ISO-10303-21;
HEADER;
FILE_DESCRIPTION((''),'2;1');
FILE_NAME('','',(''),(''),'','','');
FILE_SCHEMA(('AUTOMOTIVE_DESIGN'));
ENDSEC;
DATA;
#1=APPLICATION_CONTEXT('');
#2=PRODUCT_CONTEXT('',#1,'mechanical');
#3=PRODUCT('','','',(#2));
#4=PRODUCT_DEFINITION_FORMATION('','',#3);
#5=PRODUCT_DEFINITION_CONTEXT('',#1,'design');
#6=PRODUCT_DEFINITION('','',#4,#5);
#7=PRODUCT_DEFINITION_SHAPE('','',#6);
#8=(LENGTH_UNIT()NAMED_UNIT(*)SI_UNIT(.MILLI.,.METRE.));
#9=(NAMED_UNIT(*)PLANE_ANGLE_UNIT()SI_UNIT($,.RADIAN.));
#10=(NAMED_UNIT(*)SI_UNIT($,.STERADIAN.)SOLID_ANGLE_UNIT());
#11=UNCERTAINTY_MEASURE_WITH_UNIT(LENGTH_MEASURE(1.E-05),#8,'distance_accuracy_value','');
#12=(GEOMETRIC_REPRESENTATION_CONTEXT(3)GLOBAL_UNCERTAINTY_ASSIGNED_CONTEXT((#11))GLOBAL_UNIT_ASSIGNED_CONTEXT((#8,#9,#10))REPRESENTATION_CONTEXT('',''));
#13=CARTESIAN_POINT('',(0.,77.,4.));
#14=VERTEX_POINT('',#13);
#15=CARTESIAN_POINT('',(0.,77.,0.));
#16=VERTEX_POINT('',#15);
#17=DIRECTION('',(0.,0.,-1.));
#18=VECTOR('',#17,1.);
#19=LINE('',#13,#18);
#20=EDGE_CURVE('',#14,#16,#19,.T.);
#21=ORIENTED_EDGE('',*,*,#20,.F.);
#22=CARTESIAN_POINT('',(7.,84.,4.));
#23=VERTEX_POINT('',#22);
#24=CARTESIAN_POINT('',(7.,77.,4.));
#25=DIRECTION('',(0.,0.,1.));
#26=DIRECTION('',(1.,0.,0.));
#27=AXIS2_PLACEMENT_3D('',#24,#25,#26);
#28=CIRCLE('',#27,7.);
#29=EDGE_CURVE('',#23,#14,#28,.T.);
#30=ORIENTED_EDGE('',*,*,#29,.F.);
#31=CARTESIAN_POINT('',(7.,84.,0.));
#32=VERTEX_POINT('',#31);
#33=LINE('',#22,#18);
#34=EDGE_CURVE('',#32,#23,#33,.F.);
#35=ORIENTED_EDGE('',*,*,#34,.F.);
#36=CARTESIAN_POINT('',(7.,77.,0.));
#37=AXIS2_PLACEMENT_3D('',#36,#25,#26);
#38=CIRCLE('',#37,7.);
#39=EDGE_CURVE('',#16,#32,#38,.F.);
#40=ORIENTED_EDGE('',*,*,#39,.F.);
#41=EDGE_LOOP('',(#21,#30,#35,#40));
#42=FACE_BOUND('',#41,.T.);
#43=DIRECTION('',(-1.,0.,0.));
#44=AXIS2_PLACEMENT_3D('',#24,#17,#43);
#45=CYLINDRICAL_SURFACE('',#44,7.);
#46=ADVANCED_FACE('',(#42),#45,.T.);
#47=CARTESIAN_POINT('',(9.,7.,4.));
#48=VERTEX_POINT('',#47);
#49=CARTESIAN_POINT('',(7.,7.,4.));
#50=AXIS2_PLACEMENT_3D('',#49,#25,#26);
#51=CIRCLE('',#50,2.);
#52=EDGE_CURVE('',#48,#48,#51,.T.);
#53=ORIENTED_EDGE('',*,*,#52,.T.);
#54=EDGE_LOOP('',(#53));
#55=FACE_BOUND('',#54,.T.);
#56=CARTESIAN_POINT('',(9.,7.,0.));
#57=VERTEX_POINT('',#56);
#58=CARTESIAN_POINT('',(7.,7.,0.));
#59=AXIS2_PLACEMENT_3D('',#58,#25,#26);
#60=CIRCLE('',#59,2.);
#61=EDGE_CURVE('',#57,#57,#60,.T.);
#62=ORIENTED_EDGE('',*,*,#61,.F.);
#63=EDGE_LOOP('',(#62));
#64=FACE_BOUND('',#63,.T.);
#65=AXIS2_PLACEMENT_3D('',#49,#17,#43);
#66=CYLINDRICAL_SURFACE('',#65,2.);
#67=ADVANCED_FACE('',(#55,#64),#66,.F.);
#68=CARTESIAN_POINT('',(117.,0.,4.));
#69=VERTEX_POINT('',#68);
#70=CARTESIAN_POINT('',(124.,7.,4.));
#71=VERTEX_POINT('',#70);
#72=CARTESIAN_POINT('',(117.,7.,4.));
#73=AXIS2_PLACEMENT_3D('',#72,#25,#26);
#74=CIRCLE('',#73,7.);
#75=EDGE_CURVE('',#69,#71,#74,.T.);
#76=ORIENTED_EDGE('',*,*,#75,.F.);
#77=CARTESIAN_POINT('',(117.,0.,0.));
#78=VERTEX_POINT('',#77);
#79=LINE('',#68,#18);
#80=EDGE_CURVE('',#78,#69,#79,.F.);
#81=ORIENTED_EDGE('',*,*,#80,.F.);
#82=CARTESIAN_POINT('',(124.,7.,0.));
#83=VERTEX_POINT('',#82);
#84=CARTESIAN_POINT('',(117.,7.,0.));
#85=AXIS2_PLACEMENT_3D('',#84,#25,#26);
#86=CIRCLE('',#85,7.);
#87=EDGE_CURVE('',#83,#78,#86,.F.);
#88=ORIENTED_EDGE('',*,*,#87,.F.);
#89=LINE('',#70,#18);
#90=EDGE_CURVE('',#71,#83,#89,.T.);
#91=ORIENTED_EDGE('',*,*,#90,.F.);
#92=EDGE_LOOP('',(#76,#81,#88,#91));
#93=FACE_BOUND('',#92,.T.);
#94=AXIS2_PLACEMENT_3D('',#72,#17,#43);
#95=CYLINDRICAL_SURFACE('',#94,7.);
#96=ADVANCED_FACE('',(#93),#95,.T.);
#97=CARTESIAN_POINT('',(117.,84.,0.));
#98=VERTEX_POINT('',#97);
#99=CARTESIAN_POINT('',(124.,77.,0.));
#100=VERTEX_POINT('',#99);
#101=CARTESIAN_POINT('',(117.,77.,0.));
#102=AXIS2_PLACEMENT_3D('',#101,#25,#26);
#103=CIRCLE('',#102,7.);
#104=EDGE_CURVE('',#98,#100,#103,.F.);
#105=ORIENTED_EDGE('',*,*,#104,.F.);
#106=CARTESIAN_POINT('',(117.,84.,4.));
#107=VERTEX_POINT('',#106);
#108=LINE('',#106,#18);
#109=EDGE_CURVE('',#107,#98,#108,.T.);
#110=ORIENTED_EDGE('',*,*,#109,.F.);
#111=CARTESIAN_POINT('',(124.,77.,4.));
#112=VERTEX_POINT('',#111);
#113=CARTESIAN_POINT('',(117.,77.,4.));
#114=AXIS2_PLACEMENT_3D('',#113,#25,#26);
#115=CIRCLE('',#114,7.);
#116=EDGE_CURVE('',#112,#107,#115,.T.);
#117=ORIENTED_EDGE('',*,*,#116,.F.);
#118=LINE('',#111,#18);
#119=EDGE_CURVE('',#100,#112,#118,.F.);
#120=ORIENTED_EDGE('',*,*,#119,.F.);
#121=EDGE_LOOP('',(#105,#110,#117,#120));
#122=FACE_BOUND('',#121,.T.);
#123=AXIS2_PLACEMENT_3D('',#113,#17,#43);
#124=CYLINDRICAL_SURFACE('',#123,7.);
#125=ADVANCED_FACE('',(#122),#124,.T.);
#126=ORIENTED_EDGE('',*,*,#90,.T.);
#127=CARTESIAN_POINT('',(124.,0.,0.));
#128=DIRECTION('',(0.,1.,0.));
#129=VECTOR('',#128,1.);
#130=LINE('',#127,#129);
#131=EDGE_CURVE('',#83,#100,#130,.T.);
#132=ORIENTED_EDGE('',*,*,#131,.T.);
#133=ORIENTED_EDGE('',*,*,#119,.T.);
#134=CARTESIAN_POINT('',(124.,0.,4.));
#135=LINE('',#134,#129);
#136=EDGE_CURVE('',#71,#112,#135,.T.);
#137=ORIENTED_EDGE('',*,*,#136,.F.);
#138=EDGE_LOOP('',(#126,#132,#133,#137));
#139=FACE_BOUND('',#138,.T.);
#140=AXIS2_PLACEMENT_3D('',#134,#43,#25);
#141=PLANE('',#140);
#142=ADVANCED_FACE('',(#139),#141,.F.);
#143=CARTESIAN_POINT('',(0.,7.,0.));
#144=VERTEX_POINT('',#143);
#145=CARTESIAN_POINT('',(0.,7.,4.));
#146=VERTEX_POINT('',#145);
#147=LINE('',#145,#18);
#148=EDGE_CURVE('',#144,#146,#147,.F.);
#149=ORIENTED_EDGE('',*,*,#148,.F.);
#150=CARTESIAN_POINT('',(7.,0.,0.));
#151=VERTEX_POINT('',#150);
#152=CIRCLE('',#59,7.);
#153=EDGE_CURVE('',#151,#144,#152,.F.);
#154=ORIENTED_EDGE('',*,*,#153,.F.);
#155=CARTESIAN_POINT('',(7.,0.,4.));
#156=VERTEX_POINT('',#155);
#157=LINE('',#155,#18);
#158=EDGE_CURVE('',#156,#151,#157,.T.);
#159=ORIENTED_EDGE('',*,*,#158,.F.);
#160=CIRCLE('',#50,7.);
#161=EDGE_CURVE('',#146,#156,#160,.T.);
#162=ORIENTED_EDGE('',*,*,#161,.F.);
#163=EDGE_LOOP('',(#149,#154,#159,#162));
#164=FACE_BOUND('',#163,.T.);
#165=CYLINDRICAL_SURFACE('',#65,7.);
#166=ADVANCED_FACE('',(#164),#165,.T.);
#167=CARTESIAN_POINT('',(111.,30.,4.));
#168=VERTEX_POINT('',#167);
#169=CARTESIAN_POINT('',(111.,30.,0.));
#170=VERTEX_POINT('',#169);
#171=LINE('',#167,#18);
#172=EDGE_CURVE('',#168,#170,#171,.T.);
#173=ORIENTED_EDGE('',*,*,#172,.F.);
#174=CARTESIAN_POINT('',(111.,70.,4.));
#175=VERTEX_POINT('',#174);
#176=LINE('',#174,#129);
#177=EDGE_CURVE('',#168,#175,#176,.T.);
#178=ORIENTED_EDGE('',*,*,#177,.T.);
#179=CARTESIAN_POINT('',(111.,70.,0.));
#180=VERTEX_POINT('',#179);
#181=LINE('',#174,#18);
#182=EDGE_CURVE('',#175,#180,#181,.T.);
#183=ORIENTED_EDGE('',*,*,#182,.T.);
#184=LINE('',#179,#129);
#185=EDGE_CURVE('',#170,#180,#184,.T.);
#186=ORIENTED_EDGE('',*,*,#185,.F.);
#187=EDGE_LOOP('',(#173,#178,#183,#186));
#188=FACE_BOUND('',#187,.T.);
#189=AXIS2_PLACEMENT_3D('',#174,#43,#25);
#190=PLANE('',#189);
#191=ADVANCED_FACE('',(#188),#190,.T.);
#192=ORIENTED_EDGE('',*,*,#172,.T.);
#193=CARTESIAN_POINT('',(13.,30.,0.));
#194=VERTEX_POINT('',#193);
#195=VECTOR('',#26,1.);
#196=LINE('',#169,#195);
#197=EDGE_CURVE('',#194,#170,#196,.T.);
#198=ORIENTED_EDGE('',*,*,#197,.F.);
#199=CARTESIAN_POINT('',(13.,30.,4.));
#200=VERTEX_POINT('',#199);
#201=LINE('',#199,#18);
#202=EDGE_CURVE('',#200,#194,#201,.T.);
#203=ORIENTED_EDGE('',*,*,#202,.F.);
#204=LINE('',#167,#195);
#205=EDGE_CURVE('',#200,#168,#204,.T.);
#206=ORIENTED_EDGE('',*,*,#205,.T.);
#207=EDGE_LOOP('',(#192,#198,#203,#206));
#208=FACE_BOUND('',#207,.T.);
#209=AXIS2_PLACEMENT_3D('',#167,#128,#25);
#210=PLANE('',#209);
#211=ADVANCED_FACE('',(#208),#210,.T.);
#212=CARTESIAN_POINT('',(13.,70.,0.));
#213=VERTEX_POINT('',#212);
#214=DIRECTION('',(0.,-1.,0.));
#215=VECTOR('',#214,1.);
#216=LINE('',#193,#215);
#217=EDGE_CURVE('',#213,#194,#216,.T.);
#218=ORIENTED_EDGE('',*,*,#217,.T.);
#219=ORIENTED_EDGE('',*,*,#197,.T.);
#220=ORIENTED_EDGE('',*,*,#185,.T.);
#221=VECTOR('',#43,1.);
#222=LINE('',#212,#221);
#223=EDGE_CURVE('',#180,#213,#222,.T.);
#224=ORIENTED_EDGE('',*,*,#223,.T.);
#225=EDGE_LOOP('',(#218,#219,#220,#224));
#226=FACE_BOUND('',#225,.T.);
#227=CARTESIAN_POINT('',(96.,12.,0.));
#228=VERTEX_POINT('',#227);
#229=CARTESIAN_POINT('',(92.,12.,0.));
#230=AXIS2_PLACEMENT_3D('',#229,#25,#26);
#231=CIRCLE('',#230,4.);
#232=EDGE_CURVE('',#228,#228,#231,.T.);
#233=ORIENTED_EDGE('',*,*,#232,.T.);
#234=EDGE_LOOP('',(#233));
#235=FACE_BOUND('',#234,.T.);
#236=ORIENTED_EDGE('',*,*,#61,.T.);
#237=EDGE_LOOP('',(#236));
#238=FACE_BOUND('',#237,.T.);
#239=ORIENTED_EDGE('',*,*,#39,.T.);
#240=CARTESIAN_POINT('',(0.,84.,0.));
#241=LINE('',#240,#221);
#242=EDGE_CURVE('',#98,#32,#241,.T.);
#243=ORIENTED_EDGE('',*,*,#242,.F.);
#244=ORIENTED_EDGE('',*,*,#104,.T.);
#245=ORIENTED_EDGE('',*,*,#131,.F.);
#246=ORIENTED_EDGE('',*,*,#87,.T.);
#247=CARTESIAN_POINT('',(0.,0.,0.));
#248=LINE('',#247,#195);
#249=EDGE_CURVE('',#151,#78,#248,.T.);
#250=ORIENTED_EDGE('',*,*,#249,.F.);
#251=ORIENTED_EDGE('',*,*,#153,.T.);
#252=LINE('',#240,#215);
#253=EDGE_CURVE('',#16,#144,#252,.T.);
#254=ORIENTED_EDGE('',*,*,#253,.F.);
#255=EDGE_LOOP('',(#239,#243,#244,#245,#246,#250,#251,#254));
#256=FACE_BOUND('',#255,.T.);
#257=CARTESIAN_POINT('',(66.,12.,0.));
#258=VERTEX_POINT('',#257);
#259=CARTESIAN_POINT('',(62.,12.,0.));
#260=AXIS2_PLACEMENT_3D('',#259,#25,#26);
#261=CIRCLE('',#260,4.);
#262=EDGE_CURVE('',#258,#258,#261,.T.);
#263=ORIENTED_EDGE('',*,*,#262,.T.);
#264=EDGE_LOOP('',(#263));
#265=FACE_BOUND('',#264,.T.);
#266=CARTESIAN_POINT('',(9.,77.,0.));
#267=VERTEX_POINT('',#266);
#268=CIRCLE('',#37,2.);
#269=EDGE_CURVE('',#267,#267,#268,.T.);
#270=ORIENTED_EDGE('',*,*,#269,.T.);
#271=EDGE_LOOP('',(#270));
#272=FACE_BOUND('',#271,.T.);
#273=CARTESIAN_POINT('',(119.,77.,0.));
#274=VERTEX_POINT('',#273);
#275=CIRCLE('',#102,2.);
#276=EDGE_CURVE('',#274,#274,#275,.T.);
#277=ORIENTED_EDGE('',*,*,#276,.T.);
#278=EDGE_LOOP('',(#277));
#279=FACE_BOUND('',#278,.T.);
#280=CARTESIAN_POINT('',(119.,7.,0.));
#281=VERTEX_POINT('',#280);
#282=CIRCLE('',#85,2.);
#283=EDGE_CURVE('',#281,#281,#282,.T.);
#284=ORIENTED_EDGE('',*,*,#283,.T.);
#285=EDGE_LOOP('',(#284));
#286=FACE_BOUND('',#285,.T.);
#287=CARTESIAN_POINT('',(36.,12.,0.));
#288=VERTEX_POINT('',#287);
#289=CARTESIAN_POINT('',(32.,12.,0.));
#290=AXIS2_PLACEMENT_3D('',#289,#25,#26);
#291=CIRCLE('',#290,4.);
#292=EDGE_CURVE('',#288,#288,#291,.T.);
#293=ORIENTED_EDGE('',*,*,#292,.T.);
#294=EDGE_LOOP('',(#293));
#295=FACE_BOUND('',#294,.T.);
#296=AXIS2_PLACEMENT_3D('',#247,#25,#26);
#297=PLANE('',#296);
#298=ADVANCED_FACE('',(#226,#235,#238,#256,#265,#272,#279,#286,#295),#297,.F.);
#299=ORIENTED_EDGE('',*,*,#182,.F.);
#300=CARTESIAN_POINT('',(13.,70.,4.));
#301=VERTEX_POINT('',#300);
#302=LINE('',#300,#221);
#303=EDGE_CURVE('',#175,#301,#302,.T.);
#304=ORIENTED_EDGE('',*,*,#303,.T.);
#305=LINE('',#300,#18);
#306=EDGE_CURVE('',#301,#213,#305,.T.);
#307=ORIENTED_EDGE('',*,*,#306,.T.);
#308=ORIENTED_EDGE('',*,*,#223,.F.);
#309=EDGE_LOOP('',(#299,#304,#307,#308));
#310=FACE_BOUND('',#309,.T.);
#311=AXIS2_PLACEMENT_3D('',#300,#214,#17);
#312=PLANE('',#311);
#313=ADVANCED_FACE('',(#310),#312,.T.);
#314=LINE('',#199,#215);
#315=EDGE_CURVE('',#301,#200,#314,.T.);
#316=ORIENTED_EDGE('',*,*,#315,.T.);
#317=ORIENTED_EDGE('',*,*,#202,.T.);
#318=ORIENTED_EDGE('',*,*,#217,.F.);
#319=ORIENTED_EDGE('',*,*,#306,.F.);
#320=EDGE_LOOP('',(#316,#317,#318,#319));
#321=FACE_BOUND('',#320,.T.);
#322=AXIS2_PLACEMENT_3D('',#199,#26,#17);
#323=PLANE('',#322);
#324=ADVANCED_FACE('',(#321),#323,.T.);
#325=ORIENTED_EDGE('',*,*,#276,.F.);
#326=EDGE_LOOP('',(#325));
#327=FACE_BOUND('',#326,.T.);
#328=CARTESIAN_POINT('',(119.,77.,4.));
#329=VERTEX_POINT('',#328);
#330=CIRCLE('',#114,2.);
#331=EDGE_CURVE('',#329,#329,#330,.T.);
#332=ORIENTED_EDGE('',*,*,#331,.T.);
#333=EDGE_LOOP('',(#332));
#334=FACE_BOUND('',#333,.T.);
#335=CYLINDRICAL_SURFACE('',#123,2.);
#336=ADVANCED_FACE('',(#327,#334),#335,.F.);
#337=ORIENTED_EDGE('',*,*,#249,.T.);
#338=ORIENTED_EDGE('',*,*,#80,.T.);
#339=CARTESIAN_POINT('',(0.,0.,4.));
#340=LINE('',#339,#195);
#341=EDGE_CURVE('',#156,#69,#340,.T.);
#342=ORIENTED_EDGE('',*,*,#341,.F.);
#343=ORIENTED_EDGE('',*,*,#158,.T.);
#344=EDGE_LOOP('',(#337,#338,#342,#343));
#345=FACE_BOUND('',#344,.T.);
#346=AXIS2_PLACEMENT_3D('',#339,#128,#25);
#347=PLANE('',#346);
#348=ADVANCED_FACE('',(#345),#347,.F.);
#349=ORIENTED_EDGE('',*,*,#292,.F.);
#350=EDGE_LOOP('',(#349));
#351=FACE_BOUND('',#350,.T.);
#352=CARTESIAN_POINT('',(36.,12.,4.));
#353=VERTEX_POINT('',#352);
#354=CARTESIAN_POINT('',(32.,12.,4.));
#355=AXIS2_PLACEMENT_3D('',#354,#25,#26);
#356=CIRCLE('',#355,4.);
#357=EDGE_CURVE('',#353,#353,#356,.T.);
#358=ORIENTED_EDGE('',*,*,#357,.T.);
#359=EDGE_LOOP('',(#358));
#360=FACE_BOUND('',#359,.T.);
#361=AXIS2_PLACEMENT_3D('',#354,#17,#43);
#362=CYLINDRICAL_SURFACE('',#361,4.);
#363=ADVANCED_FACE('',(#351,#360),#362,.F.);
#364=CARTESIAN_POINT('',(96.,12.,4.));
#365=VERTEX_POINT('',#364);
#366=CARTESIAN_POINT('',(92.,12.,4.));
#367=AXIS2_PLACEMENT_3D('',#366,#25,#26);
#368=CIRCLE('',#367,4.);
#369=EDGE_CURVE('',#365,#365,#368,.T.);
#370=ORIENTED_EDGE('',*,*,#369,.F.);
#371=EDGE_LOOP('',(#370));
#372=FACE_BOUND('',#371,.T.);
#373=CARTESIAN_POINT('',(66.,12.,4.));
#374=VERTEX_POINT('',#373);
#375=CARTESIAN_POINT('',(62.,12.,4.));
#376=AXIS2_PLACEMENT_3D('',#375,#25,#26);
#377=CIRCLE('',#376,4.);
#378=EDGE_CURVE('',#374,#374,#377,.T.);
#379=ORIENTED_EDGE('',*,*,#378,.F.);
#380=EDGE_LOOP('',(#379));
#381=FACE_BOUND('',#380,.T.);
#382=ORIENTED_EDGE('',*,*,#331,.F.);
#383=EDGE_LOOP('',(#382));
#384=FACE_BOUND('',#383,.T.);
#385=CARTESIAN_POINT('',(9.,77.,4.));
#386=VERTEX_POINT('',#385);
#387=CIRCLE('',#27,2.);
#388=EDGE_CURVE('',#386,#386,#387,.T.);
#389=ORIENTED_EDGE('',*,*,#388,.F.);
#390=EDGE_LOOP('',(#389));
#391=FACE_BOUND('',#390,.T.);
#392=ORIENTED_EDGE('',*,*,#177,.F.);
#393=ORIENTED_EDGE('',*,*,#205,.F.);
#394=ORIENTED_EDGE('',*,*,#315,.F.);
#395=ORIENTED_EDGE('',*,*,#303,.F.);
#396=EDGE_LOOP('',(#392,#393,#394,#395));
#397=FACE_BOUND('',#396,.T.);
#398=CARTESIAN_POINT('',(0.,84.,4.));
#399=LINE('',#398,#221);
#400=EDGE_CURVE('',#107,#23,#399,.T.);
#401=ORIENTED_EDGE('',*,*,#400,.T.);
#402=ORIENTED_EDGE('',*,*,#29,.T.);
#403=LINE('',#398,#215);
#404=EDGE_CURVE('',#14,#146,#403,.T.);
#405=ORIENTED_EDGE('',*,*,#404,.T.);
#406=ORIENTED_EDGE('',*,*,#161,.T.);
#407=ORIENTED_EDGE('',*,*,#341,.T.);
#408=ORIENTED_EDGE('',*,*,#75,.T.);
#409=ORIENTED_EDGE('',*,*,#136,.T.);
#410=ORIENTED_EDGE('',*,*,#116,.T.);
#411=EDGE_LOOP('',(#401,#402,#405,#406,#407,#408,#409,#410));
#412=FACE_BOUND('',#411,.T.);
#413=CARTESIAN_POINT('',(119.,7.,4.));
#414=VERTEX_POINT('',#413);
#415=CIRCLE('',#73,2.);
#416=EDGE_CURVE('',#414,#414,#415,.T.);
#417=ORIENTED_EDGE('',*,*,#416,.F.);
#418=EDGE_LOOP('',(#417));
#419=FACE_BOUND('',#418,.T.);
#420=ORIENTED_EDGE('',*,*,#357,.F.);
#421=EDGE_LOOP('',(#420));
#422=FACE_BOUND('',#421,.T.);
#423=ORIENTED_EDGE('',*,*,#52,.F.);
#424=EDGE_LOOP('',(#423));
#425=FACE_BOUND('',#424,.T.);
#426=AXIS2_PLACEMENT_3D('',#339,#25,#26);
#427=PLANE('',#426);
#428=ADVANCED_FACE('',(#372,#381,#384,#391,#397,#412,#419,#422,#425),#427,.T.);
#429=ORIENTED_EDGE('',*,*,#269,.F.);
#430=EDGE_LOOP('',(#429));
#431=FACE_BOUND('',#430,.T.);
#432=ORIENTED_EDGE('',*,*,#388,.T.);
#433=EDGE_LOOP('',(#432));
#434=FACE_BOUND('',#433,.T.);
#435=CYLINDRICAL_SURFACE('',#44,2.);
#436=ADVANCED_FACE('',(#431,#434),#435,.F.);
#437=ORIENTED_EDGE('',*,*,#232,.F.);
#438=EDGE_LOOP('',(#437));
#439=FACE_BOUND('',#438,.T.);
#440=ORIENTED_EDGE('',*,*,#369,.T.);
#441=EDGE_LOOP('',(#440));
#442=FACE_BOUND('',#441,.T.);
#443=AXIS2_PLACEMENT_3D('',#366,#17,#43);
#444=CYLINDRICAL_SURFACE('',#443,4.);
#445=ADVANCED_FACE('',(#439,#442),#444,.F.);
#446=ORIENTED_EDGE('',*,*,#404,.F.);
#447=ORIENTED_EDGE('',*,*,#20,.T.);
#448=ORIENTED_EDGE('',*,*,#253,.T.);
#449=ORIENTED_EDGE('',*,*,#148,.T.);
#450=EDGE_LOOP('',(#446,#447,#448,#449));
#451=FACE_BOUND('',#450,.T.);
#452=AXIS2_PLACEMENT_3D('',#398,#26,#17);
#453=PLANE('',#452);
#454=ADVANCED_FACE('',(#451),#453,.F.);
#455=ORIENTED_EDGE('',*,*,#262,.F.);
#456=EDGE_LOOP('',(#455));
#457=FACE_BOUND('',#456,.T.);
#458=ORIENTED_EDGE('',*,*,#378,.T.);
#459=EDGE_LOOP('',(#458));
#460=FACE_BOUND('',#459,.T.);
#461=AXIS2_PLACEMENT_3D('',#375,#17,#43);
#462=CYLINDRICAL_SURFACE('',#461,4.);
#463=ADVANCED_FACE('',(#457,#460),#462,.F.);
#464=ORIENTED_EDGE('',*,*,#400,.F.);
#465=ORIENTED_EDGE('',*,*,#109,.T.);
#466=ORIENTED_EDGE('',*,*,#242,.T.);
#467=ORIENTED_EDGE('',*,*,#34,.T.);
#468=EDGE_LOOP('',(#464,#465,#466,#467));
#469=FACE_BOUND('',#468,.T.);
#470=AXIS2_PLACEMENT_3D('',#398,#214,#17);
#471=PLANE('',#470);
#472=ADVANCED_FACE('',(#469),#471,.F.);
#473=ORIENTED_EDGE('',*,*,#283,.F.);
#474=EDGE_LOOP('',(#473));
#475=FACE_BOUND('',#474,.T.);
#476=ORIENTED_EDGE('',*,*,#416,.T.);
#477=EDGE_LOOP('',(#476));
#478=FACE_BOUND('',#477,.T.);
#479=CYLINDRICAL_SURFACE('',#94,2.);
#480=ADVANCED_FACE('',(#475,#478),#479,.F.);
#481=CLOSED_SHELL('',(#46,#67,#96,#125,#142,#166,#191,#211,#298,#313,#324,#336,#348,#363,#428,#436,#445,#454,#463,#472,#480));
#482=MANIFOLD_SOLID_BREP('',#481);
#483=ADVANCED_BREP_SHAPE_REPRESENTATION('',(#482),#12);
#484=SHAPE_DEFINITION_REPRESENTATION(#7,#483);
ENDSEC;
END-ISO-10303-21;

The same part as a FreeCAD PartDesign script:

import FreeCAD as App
import Part
import Sketcher
from FreeCAD import Vector
Q = App.Units.Quantity


def edges_at(feature, points):
    """Names of the edges that pass closest to the given points."""
    edges = feature.Shape.Edges
    near = lambda p: min(range(len(edges)), key=lambda i: edges[i].distToShape(Part.Vertex(*p))[0])
    return sorted({f"Edge{near(p) + 1}" for p in points})

doc = App.newDocument("Part")
body = doc.addObject("PartDesign::Body", "Body")

sketch1 = body.newObject("Sketcher::SketchObject", "Sketch")
sketch1.AttachmentSupport = (doc.getObject("XY_Plane"), [""])
sketch1.MapMode = "FlatFace"
sketch1.addGeometry([
    Part.LineSegment(Vector(0, 84, 0), Vector(0, 0, 0)),
    Part.LineSegment(Vector(0, 0, 0), Vector(124, 0, 0)),
    Part.LineSegment(Vector(124, 0, 0), Vector(124, 84, 0)),
    Part.LineSegment(Vector(124, 84, 0), Vector(0, 84, 0)),
    Part.Circle(Vector(7, 7, 0), Vector(0, 0, 1), 2),
    Part.Circle(Vector(32, 12, 0), Vector(0, 0, 1), 4),
    Part.Circle(Vector(62, 12, 0), Vector(0, 0, 1), 4),
    Part.Circle(Vector(92, 12, 0), Vector(0, 0, 1), 4),
    Part.Circle(Vector(117, 7, 0), Vector(0, 0, 1), 2),
    Part.Circle(Vector(7, 77, 0), Vector(0, 0, 1), 2),
    Part.LineSegment(Vector(111, 30, 0), Vector(13, 30, 0)),
    Part.LineSegment(Vector(13, 30, 0), Vector(13, 70, 0)),
    Part.LineSegment(Vector(13, 70, 0), Vector(111, 70, 0)),
    Part.LineSegment(Vector(111, 70, 0), Vector(111, 30, 0)),
    Part.Circle(Vector(117, 77, 0), Vector(0, 0, 1), 2),
], False)
sketch1.addConstraint([
    Sketcher.Constraint("Coincident", 0, 2, 1, 1),
    Sketcher.Constraint("Coincident", 1, 2, 2, 1),
    Sketcher.Constraint("Coincident", 2, 2, 3, 1),
    Sketcher.Constraint("Coincident", 3, 2, 0, 1),
    Sketcher.Constraint("Coincident", 10, 2, 11, 1),
    Sketcher.Constraint("Coincident", 11, 2, 12, 1),
    Sketcher.Constraint("Coincident", 12, 2, 13, 1),
    Sketcher.Constraint("Coincident", 13, 2, 10, 1),
    Sketcher.Constraint("Vertical", 0),
    Sketcher.Constraint("Horizontal", 1),
    Sketcher.Constraint("Vertical", 2),
    Sketcher.Constraint("Horizontal", 3),
    Sketcher.Constraint("Horizontal", 10),
    Sketcher.Constraint("Vertical", 11),
    Sketcher.Constraint("Horizontal", 12),
    Sketcher.Constraint("Vertical", 13),
    Sketcher.Constraint("Coincident", 0, 2, -1, 1),
    Sketcher.Constraint("Equal", 5, 6),
    Sketcher.Constraint("Equal", 6, 7),
    Sketcher.Constraint("Equal", 4, 8),
    Sketcher.Constraint("Equal", 8, 9),
    Sketcher.Constraint("Equal", 9, 14),
    Sketcher.Constraint("Horizontal", 5, 3, 6, 3),
    Sketcher.Constraint("Horizontal", 6, 3, 7, 3),
    Sketcher.Constraint("Horizontal", 4, 3, 8, 3),
    Sketcher.Constraint("Horizontal", 9, 3, 14, 3),
    Sketcher.Constraint("Vertical", 4, 3, 9, 3),
    Sketcher.Constraint("Vertical", 8, 3, 14, 3),
    Sketcher.Constraint("Diameter", 4, Q("4 mm")),
    Sketcher.Constraint("Diameter", 5, Q("8 mm")),
    Sketcher.Constraint("DistanceX", 1, 1, 1, 2, Q("124 mm")),
    Sketcher.Constraint("DistanceX", 10, 2, 10, 1, Q("98 mm")),
    Sketcher.Constraint("DistanceY", 0, 2, 0, 1, Q("84 mm")),
    Sketcher.Constraint("DistanceY", 11, 1, 11, 2, Q("40 mm")),
    Sketcher.Constraint("DistanceX", -1, 1, 4, 3, Q("7 mm")),
    Sketcher.Constraint("DistanceY", -1, 1, 4, 3, Q("7 mm")),
    Sketcher.Constraint("DistanceX", -1, 1, 5, 3, Q("32 mm")),
    Sketcher.Constraint("DistanceY", -1, 1, 5, 3, Q("12 mm")),
    Sketcher.Constraint("DistanceX", -1, 1, 6, 3, Q("62 mm")),
    Sketcher.Constraint("DistanceX", -1, 1, 7, 3, Q("92 mm")),
    Sketcher.Constraint("DistanceX", -1, 1, 8, 3, Q("117 mm")),
    Sketcher.Constraint("DistanceY", -1, 1, 9, 3, Q("77 mm")),
    Sketcher.Constraint("DistanceX", -1, 1, 10, 2, Q("13 mm")),
    Sketcher.Constraint("DistanceY", -1, 1, 10, 2, Q("30 mm")),
])
pad1 = body.newObject("PartDesign::Pad", "Pad")
pad1.Profile = sketch1
pad1.Length = 4
doc.recompute()

fillet = body.newObject("PartDesign::Fillet", "Fillet")
fillet.Base = (pad1, edges_at(pad1, [
    (0, 84, 2),
    (124, 84, 2),
    (124, 0, 2),
    (0, 0, 2),
]))
fillet.Radius = 7

doc.recompute()
